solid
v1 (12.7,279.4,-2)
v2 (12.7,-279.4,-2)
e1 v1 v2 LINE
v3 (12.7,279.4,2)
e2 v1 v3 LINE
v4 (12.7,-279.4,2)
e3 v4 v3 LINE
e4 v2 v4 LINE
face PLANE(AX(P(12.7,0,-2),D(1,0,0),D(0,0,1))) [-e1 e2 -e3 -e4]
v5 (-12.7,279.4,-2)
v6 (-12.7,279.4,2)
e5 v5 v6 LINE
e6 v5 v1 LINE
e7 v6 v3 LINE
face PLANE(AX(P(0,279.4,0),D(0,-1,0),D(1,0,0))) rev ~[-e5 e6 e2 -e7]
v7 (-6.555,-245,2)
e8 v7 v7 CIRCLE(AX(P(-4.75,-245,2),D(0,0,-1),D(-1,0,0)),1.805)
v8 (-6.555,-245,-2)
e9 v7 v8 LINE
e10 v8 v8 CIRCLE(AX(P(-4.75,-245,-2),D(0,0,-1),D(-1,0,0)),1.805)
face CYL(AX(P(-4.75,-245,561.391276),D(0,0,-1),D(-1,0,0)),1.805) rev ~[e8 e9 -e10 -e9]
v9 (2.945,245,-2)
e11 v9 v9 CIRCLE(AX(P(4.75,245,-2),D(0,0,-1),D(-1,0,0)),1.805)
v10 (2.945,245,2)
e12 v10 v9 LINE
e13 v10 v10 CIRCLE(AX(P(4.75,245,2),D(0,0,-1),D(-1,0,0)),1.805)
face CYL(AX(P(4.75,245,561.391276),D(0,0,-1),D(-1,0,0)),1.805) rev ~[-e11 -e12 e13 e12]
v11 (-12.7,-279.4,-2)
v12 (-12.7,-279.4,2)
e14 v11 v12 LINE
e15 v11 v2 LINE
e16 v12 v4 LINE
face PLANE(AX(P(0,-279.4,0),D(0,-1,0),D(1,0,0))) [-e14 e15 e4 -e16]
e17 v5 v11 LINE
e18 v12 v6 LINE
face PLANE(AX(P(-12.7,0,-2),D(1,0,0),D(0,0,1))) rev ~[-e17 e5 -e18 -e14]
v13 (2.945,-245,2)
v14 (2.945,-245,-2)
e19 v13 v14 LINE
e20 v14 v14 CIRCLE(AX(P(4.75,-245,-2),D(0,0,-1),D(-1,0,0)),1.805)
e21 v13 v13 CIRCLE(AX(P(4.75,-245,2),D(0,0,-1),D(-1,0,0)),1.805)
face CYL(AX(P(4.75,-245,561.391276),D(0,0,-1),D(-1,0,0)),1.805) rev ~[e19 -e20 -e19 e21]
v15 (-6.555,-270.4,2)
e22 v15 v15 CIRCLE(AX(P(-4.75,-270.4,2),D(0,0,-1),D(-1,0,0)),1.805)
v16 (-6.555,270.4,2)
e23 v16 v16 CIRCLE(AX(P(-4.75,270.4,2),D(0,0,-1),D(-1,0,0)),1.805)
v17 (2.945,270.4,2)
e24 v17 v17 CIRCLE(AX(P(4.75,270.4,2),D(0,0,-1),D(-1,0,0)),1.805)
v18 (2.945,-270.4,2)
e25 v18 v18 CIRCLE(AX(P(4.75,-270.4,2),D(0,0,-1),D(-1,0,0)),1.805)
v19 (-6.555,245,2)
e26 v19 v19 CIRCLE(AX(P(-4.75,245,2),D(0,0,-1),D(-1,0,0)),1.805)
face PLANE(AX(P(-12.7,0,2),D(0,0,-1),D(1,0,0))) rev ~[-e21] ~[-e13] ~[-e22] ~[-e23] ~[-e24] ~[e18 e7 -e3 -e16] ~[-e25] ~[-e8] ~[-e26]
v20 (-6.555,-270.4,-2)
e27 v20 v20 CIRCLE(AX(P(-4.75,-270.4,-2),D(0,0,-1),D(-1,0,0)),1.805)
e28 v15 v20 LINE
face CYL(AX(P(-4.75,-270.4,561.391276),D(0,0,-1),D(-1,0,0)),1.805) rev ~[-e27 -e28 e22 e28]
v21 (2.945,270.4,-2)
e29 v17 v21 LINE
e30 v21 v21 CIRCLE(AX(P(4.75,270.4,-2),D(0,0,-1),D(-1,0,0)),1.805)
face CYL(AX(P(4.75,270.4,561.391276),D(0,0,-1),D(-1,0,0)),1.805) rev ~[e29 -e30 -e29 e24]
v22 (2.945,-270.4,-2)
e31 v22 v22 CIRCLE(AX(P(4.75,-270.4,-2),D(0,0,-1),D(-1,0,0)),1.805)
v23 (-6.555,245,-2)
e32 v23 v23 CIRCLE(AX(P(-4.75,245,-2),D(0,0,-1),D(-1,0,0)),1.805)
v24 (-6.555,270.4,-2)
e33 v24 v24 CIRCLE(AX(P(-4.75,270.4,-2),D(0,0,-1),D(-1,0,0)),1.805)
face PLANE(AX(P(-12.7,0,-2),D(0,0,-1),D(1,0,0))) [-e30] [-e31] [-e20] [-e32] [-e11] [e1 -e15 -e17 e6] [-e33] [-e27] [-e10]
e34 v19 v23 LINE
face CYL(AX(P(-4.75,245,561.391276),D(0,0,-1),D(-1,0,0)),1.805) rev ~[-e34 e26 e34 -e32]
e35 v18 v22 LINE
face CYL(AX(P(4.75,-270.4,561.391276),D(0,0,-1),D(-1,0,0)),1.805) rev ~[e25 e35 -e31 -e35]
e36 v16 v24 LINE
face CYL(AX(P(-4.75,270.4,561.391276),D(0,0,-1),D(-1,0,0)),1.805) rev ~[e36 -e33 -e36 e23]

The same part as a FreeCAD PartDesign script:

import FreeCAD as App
import Part
import Sketcher

V = App.Vector
Q = App.Units.Quantity

doc = App.newDocument("Part")
body = doc.addObject("PartDesign::Body", "Body")

# Sketch on XZ plane
sketch1 = doc.addObject("Sketcher::SketchObject", "Sketch")
body.addObject(sketch1)
sketch1.AttachmentSupport = (doc.XZ_Plane, [""])
sketch1.MapMode = "FlatFace"
sketch1.addGeometry(Part.LineSegment(V(-12.7, 2, 0), V(-12.7, -2, 0)), False)
sketch1.addGeometry(Part.LineSegment(V(-12.7, -2, 0), V(12.7, -2, 0)), False)
sketch1.addGeometry(Part.LineSegment(V(12.7, -2, 0), V(12.7, 2, 0)), False)
sketch1.addGeometry(Part.LineSegment(V(12.7, 2, 0), V(-12.7, 2, 0)), False)
sketch1.addConstraint(Sketcher.Constraint("Coincident", 0, 2, 1, 1))
sketch1.addConstraint(Sketcher.Constraint("Coincident", 1, 2, 2, 1))
sketch1.addConstraint(Sketcher.Constraint("Coincident", 2, 2, 3, 1))
sketch1.addConstraint(Sketcher.Constraint("Coincident", 3, 2, 0, 1))
sketch1.addConstraint(Sketcher.Constraint("Vertical", 0))
sketch1.addConstraint(Sketcher.Constraint("Horizontal", 1))
sketch1.addConstraint(Sketcher.Constraint("Vertical", 2))
sketch1.addConstraint(Sketcher.Constraint("Horizontal", 3))
sketch1.addConstraint(Sketcher.Constraint("Symmetric", 0, 2, 2, 2, -1, 1))
sketch1.addConstraint(Sketcher.Constraint("DistanceX", 1, 1, 1, 2, Q("1 in")))
sketch1.addConstraint(Sketcher.Constraint("DistanceY", 0, 2, 0, 1, Q("4 mm")))
pad1 = doc.addObject("PartDesign::Pad", "Pad")
body.addObject(pad1)
pad1.Profile = sketch1
pad1.Length = Q("22 in")
pad1.Midplane = True

# Sketch on XY plane
sketch2 = doc.addObject("Sketcher::SketchObject", "Sketch001")
body.addObject(sketch2)
sketch2.AttachmentSupport = (doc.XY_Plane, [""])
sketch2.MapMode = "FlatFace"
sketch2.AttachmentOffset = App.Placement(V(0, 0, 2), App.Rotation())
sketch2.addGeometry(Part.Circle(V(-4.8, -270.4, 0), V(0, 0, 1), 1.8), False)
sketch2.addGeometry(Part.Circle(V(-4.8, -245, 0), V(0, 0, 1), 1.8), False)
sketch2.addGeometry(Part.Circle(V(4.8, -245, 0), V(0, 0, 1), 1.8), False)
sketch2.addGeometry(Part.Circle(V(4.8, -270.4, 0), V(0, 0, 1), 1.8), False)
sketch2.addGeometry(Part.Circle(V(-4.8, 245, 0), V(0, 0, 1), 1.8), False)
sketch2.addGeometry(Part.Circle(V(4.8, 245, 0), V(0, 0, 1), 1.8), False)
sketch2.addGeometry(Part.Circle(V(4.8, 270.4, 0), V(0, 0, 1), 1.8), False)
sketch2.addGeometry(Part.Circle(V(-4.8, 270.4, 0), V(0, 0, 1), 1.8), False)
sketch2.addConstraint(Sketcher.Constraint("Equal", 0, 1))
sketch2.addConstraint(Sketcher.Constraint("Equal", 1, 2))
sketch2.addConstraint(Sketcher.Constraint("Equal", 2, 3))
sketch2.addConstraint(Sketcher.Constraint("Equal", 3, 4))
sketch2.addConstraint(Sketcher.Constraint("Equal", 4, 5))
sketch2.addConstraint(Sketcher.Constraint("Equal", 5, 6))
sketch2.addConstraint(Sketcher.Constraint("Equal", 6, 7))
sketch2.addConstraint(Sketcher.Constraint("Symmetric", 2, 3, 4, 3, -1, 1))
sketch2.addConstraint(Sketcher.Constraint("Symmetric", 1, 3, 5, 3, -1, 1))
sketch2.addConstraint(Sketcher.Constraint("Symmetric", 0, 3, 6, 3, -1, 1))
sketch2.addConstraint(Sketcher.Constraint("Symmetric", 3, 3, 7, 3, -1, 1))
sketch2.addConstraint(Sketcher.Constraint("Symmetric", 1, 3, 2, 3, -2))
sketch2.addConstraint(Sketcher.Constraint("Symmetric", 0, 3, 3, 3, -2))
sketch2.addConstraint(Sketcher.Constraint("Vertical", 0, 3, 1, 3))
sketch2.addConstraint(Sketcher.Constraint("DistanceY", 0, 3, 1, 3, Q("1 in")))
sketch2.addConstraint(Sketcher.Constraint("Diameter", 0, Q("3.61 mm")))
sketch2.addConstraint(Sketcher.Constraint("DistanceX", 0, 3, -1, 1, Q("4.75 mm")))
sketch2.addConstraint(Sketcher.Constraint("DistanceY", 0, 3, -1, 1, Q("270.4 mm")))
doc.recompute()
hole = doc.addObject("PartDesign::Hole", "Hole")
body.addObject(hole)
hole.Profile = sketch2
hole.ThreadType = "None"
hole.Diameter = 3.61
hole.DepthType = "ThroughAll"

doc.recompute()
